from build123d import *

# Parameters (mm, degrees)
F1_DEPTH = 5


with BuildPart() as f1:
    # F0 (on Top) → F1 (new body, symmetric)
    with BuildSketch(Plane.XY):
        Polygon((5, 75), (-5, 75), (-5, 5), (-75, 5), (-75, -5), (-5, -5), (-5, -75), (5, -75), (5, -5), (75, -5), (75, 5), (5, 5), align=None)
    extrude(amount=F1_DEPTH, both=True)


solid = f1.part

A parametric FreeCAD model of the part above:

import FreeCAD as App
import Part
import Sketcher
from FreeCAD import Vector
Q = App.Units.Quantity

doc = App.newDocument("Part")
body = doc.addObject("PartDesign::Body", "Body")

# Sketch on XY plane
sketch1 = doc.addObject("Sketcher::SketchObject", "Sketch")
body.addObject(sketch1)
sketch1.AttachmentSupport = (doc.XY_Plane, [""])
sketch1.MapMode = "FlatFace"
sketch1.addGeometry(Part.LineSegment(Vector(5, 75, 0), Vector(-5, 75, 0)), False)
sketch1.addGeometry(Part.LineSegment(Vector(-5, 75, 0), Vector(-5, 5, 0)), False)
sketch1.addGeometry(Part.LineSegment(Vector(-5, 5, 0), Vector(-75, 5, 0)), False)
sketch1.addGeometry(Part.LineSegment(Vector(-75, 5, 0), Vector(-75, -5, 0)), False)
sketch1.addGeometry(Part.LineSegment(Vector(-75, -5, 0), Vector(-5, -5, 0)), False)
sketch1.addGeometry(Part.LineSegment(Vector(-5, -5, 0), Vector(-5, -75, 0)), False)
sketch1.addGeometry(Part.LineSegment(Vector(-5, -75, 0), Vector(5, -75, 0)), False)
sketch1.addGeometry(Part.LineSegment(Vector(5, -75, 0), Vector(5, -5, 0)), False)
sketch1.addGeometry(Part.LineSegment(Vector(5, -5, 0), Vector(75, -5, 0)), False)
sketch1.addGeometry(Part.LineSegment(Vector(75, -5, 0), Vector(75, 5, 0)), False)
sketch1.addGeometry(Part.LineSegment(Vector(75, 5, 0), Vector(5, 5, 0)), False)
sketch1.addGeometry(Part.LineSegment(Vector(5, 5, 0), Vector(5, 75, 0)), False)
sketch1.addConstraint(Sketcher.Constraint("Coincident", 0, 2, 1, 1))
sketch1.addConstraint(Sketcher.Constraint("Coincident", 1, 2, 2, 1))
sketch1.addConstraint(Sketcher.Constraint("Coincident", 2, 2, 3, 1))
sketch1.addConstraint(Sketcher.Constraint("Coincident", 3, 2, 4, 1))
sketch1.addConstraint(Sketcher.Constraint("Coincident", 4, 2, 5, 1))
sketch1.addConstraint(Sketcher.Constraint("Coincident", 5, 2, 6, 1))
sketch1.addConstraint(Sketcher.Constraint("Coincident", 6, 2, 7, 1))
sketch1.addConstraint(Sketcher.Constraint("Coincident", 7, 2, 8, 1))
sketch1.addConstraint(Sketcher.Constraint("Coincident", 8, 2, 9, 1))
sketch1.addConstraint(Sketcher.Constraint("Coincident", 9, 2, 10, 1))
sketch1.addConstraint(Sketcher.Constraint("Coincident", 10, 2, 11, 1))
sketch1.addConstraint(Sketcher.Constraint("Coincident", 11, 2, 0, 1))
sketch1.addConstraint(Sketcher.Constraint("Horizontal", 0))
sketch1.addConstraint(Sketcher.Constraint("Vertical", 1))
sketch1.addConstraint(Sketcher.Constraint("Horizontal", 2))
sketch1.addConstraint(Sketcher.Constraint("Vertical", 3))
sketch1.addConstraint(Sketcher.Constraint("Horizontal", 4))
sketch1.addConstraint(Sketcher.Constraint("Vertical", 5))
sketch1.addConstraint(Sketcher.Constraint("Horizontal", 6))
sketch1.addConstraint(Sketcher.Constraint("Vertical", 7))
sketch1.addConstraint(Sketcher.Constraint("Horizontal", 8))
sketch1.addConstraint(Sketcher.Constraint("Vertical", 9))
sketch1.addConstraint(Sketcher.Constraint("Horizontal", 10))
sketch1.addConstraint(Sketcher.Constraint("Vertical", 11))
sketch1.addConstraint(Sketcher.Constraint("Symmetric", 0, 2, 6, 2, -1, 1))
sketch1.addConstraint(Sketcher.Constraint("Symmetric", 2, 2, 8, 2, -1, 1))
sketch1.addConstraint(Sketcher.Constraint("Symmetric", 4, 2, 10, 2, -1, 1))
sketch1.addConstraint(Sketcher.Constraint("Symmetric", 4, 2, 7, 2, -2))
sketch1.addConstraint(Sketcher.Constraint("Equal", 10, 1))
sketch1.addConstraint(Sketcher.Constraint("Equal", 6, 3))
sketch1.addConstraint(Sketcher.Constraint("DistanceX", 0, 2, 0, 1, Q("10 mm")))
sketch1.addConstraint(Sketcher.Constraint("DistanceX", 2, 2, 2, 1, Q("70 mm")))
pad1 = doc.addObject("PartDesign::Pad", "Pad")
body.addObject(pad1)
pad1.Profile = sketch1
pad1.Length = 10
pad1.Midplane = True

doc.recompute()
